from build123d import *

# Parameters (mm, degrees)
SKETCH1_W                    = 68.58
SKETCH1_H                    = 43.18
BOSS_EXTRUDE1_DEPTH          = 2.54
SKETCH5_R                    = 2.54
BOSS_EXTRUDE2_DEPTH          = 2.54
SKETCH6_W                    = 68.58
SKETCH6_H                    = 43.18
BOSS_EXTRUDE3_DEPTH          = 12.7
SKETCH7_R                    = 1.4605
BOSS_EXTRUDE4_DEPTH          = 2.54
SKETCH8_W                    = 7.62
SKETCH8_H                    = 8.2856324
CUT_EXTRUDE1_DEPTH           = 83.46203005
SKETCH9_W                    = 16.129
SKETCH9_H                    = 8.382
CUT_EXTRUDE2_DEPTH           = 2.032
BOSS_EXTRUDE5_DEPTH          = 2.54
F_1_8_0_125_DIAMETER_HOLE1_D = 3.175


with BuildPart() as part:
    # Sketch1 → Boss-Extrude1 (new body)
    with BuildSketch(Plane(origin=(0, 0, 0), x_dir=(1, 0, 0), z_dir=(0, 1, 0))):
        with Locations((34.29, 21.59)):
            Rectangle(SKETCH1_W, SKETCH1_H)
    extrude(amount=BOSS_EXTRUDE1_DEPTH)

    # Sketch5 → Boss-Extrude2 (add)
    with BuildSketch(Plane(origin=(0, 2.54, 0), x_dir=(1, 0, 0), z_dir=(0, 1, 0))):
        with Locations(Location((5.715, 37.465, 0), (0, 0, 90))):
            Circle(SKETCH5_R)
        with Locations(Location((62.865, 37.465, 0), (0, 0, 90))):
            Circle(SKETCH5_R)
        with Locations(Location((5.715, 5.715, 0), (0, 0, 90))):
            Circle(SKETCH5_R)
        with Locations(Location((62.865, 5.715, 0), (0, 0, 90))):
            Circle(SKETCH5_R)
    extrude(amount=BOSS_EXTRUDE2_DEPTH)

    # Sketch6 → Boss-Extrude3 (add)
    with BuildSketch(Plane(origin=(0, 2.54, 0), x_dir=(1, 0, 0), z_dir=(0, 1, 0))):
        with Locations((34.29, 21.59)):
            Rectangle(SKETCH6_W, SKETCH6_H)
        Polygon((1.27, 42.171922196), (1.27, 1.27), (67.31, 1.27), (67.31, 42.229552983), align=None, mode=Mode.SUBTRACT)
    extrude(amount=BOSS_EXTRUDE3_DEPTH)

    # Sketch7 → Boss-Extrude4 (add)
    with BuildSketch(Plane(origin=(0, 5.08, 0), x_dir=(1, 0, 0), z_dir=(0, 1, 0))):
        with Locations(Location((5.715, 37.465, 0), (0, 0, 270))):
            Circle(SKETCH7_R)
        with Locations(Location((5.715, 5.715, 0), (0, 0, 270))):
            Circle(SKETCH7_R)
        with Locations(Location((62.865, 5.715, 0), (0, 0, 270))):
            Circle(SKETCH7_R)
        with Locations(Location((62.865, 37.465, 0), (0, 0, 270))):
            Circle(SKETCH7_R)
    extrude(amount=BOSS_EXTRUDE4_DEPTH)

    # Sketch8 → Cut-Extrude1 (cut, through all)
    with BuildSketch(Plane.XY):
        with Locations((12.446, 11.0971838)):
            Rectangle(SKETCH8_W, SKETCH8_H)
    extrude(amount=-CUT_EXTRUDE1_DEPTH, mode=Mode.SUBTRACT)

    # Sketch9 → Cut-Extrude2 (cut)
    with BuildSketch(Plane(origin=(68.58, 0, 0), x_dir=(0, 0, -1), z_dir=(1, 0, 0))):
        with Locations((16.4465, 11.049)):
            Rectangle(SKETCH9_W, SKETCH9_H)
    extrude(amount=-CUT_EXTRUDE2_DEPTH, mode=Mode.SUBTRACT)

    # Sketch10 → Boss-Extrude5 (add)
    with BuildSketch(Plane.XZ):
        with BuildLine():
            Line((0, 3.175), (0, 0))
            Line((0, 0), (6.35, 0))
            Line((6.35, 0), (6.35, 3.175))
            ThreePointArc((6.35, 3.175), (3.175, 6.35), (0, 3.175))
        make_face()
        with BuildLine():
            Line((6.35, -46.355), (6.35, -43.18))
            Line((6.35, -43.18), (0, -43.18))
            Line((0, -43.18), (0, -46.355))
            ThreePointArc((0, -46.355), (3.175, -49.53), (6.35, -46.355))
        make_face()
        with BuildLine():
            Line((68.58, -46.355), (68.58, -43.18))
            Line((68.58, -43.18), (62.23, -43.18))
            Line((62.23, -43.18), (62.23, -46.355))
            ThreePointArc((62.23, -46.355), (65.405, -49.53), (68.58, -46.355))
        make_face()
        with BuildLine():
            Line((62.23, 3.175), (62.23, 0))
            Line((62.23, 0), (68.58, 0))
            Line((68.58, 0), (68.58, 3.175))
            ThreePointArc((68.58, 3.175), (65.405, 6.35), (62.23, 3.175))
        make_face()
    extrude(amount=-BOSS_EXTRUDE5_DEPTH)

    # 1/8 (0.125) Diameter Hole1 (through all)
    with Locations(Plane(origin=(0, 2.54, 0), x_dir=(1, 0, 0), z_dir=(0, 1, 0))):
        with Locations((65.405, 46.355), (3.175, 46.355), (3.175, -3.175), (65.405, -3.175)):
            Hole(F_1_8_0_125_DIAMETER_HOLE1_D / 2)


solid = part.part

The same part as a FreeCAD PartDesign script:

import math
import FreeCAD as App
import Part
import Sketcher
Q = App.Units.Quantity

doc = App.newDocument("Part")
body = doc.addObject("PartDesign::Body", "Body")

# Sketch on XZ plane
sketch1 = body.newObject("Sketcher::SketchObject", "Sketch")
sketch1.AttachmentSupport = (doc.getObject("XZ_Plane"), [""])
sketch1.MapMode = "FlatFace"
sketch1.addGeometry(Part.LineSegment(App.Vector(0, -43, 0), App.Vector(0, 0, 0)), False)
sketch1.addGeometry(Part.LineSegment(App.Vector(0, 0, 0), App.Vector(69, 0, 0)), False)
sketch1.addGeometry(Part.LineSegment(App.Vector(69, 0, 0), App.Vector(69, -43, 0)), False)
sketch1.addGeometry(Part.LineSegment(App.Vector(69, -43, 0), App.Vector(0, -43, 0)), False)
sketch1.addConstraint(Sketcher.Constraint("Coincident", 0, 2, 1, 1))
sketch1.addConstraint(Sketcher.Constraint("Coincident", 1, 2, 2, 1))
sketch1.addConstraint(Sketcher.Constraint("Coincident", 2, 2, 3, 1))
sketch1.addConstraint(Sketcher.Constraint("Coincident", 3, 2, 0, 1))
sketch1.addConstraint(Sketcher.Constraint("Vertical", 0))
sketch1.addConstraint(Sketcher.Constraint("Horizontal", 1))
sketch1.addConstraint(Sketcher.Constraint("Vertical", 2))
sketch1.addConstraint(Sketcher.Constraint("Horizontal", 3))
sketch1.addConstraint(Sketcher.Constraint("Coincident", 0, 2, -1, 1))
sketch1.addConstraint(Sketcher.Constraint("DistanceX", 1, 1, 1, 2, Q("2.7 in")))
sketch1.addConstraint(Sketcher.Constraint("DistanceY", 0, 1, 0, 2, Q("1.7 in")))
pad1 = body.newObject("PartDesign::Pad", "Pad")
pad1.Profile = sketch1
pad1.Length = Q("0.1 in")
pad1.Reversed = True

# Sketch on XZ plane
sketch2 = body.newObject("Sketcher::SketchObject", "Sketch001")
sketch2.AttachmentSupport = (doc.getObject("XZ_Plane"), [""])
sketch2.MapMode = "FlatFace"
sketch2.AttachmentOffset = App.Placement(App.Vector(0, 0, -0.1 * 25.4), App.Rotation())
sketch2.addGeometry(Part.Circle(App.Vector(5.7, -37.5, 0), App.Vector(0, 0, 1), 2.5), False)
sketch2.addGeometry(Part.Circle(App.Vector(62.9, -37.5, 0), App.Vector(0, 0, 1), 2.5), False)
sketch2.addGeometry(Part.Circle(App.Vector(5.7, -5.7, 0), App.Vector(0, 0, 1), 2.5), False)
sketch2.addGeometry(Part.Circle(App.Vector(62.9, -5.7, 0), App.Vector(0, 0, 1), 2.5), False)
sketch2.addConstraint(Sketcher.Constraint("Equal", 0, 1))
sketch2.addConstraint(Sketcher.Constraint("Equal", 1, 2))
sketch2.addConstraint(Sketcher.Constraint("Equal", 2, 3))
sketch2.addConstraint(Sketcher.Constraint("Horizontal", 0, 3, 1, 3))
sketch2.addConstraint(Sketcher.Constraint("Horizontal", 2, 3, 3, 3))
sketch2.addConstraint(Sketcher.Constraint("Vertical", 0, 3, 2, 3))
sketch2.addConstraint(Sketcher.Constraint("Vertical", 1, 3, 3, 3))
sketch2.addConstraint(Sketcher.Constraint("Diameter", 0, Q("0.2 in")))
sketch2.addConstraint(Sketcher.Constraint("DistanceX", 0, 3, 1, 3, Q("2.25 in")))
sketch2.addConstraint(Sketcher.Constraint("DistanceY", 0, 3, 2, 3, Q("1.25 in")))
sketch2.addConstraint(Sketcher.Constraint("DistanceX", -1, 1, 0, 3, Q("0.225 in")))
sketch2.addConstraint(Sketcher.Constraint("DistanceY", 0, 3, -1, 1, Q("1.475 in")))
pad2 = body.newObject("PartDesign::Pad", "Pad001")
pad2.Profile = sketch2
pad2.Length = Q("0.1 in")
pad2.Reversed = True

# Sketch on XZ plane
sketch3 = body.newObject("Sketcher::SketchObject", "Sketch002")
sketch3.AttachmentSupport = (doc.getObject("XZ_Plane"), [""])
sketch3.MapMode = "FlatFace"
sketch3.AttachmentOffset = App.Placement(App.Vector(0, 0, -0.1 * 25.4), App.Rotation())
sketch3.addGeometry(Part.LineSegment(App.Vector(0, -43, 0), App.Vector(0, 0, 0)), False)
sketch3.addGeometry(Part.LineSegment(App.Vector(0, 0, 0), App.Vector(69, 0, 0)), False)
sketch3.addGeometry(Part.LineSegment(App.Vector(69, 0, 0), App.Vector(69, -43, 0)), False)
sketch3.addGeometry(Part.LineSegment(App.Vector(69, -43, 0), App.Vector(0, -43, 0)), False)
sketch3.addGeometry(Part.LineSegment(App.Vector(1, -1, 0), App.Vector(1, -42, 0)), False)
sketch3.addGeometry(Part.LineSegment(App.Vector(1, -42, 0), App.Vector(67, -42, 0)), False)
sketch3.addGeometry(Part.LineSegment(App.Vector(67, -42, 0), App.Vector(67, -1, 0)), False)
sketch3.addGeometry(Part.LineSegment(App.Vector(67, -1, 0), App.Vector(1, -1, 0)), False)
sketch3.addConstraint(Sketcher.Constraint("Coincident", 0, 2, 1, 1))
sketch3.addConstraint(Sketcher.Constraint("Coincident", 1, 2, 2, 1))
sketch3.addConstraint(Sketcher.Constraint("Coincident", 2, 2, 3, 1))
sketch3.addConstraint(Sketcher.Constraint("Coincident", 3, 2, 0, 1))
sketch3.addConstraint(Sketcher.Constraint("Coincident", 4, 2, 5, 1))
sketch3.addConstraint(Sketcher.Constraint("Coincident", 5, 2, 6, 1))
sketch3.addConstraint(Sketcher.Constraint("Coincident", 6, 2, 7, 1))
sketch3.addConstraint(Sketcher.Constraint("Coincident", 7, 2, 4, 1))
sketch3.addConstraint(Sketcher.Constraint("Vertical", 0))
sketch3.addConstraint(Sketcher.Constraint("Horizontal", 1))
sketch3.addConstraint(Sketcher.Constraint("Vertical", 2))
sketch3.addConstraint(Sketcher.Constraint("Horizontal", 3))
sketch3.addConstraint(Sketcher.Constraint("Vertical", 4))
sketch3.addConstraint(Sketcher.Constraint("Vertical", 6))
sketch3.addConstraint(Sketcher.Constraint("Horizontal", 7))
sketch3.addConstraint(Sketcher.Constraint("Coincident", 0, 2, -1, 1))
sketch3.addConstraint(Sketcher.Constraint("DistanceX", 1, 1, 1, 2, Q("2.7 in")))
sketch3.addConstraint(Sketcher.Constraint("DistanceX", 7, 2, 7, 1, Q("2.6 in")))
sketch3.addConstraint(Sketcher.Constraint("DistanceY", 0, 1, 0, 2, Q("1.7 in")))
sketch3.addConstraint(Sketcher.Constraint("DistanceX", -1, 1, 4, 2, Q("0.05 in")))
sketch3.addConstraint(Sketcher.Constraint("DistanceY", 6, 2, -1, 1, Q("0.05 in")))
sketch3.addConstraint(Sketcher.Constraint("Angle", 5, Q("-0.05 deg")))
sketch3.addConstraint(Sketcher.Constraint("DistanceY", 4, 2, 4, 1, 40.901922))
pad3 = body.newObject("PartDesign::Pad", "Pad002")
pad3.Profile = sketch3
pad3.Length = Q("0.5 in")
pad3.Reversed = True

# Sketch on XZ plane
sketch4 = body.newObject("Sketcher::SketchObject", "Sketch003")
sketch4.AttachmentSupport = (doc.getObject("XZ_Plane"), [""])
sketch4.MapMode = "FlatFace"
sketch4.AttachmentOffset = App.Placement(App.Vector(0, 0, -0.2 * 25.4), App.Rotation())
sketch4.addGeometry(Part.Circle(App.Vector(5.7, -37.5, 0), App.Vector(0, 0, 1), 1.5), False)
sketch4.addGeometry(Part.Circle(App.Vector(5.7, -5.7, 0), App.Vector(0, 0, 1), 1.5), False)
sketch4.addGeometry(Part.Circle(App.Vector(62.9, -5.7, 0), App.Vector(0, 0, 1), 1.5), False)
sketch4.addGeometry(Part.Circle(App.Vector(62.9, -37.5, 0), App.Vector(0, 0, 1), 1.5), False)
sketch4.addConstraint(Sketcher.Constraint("Equal", 0, 1))
sketch4.addConstraint(Sketcher.Constraint("Equal", 1, 2))
sketch4.addConstraint(Sketcher.Constraint("Equal", 2, 3))
sketch4.addConstraint(Sketcher.Constraint("Horizontal", 1, 3, 2, 3))
sketch4.addConstraint(Sketcher.Constraint("Horizontal", 0, 3, 3, 3))
sketch4.addConstraint(Sketcher.Constraint("Vertical", 0, 3, 1, 3))
sketch4.addConstraint(Sketcher.Constraint("Vertical", 2, 3, 3, 3))
sketch4.addConstraint(Sketcher.Constraint("Diameter", 0, Q("0.115 in")))
sketch4.addConstraint(Sketcher.Constraint("DistanceY", 0, 3, 1, 3, Q("1.25 in")))
sketch4.addConstraint(Sketcher.Constraint("DistanceX", 1, 3, 2, 3, Q("2.25 in")))
sketch4.addConstraint(Sketcher.Constraint("DistanceX", -1, 1, 0, 3, Q("0.225 in")))
sketch4.addConstraint(Sketcher.Constraint("DistanceY", 0, 3, -1, 1, Q("1.475 in")))
pad4 = body.newObject("PartDesign::Pad", "Pad003")
pad4.Profile = sketch4
pad4.Length = Q("0.1 in")
pad4.Reversed = True

# Sketch on XY plane
sketch5 = body.newObject("Sketcher::SketchObject", "Sketch004")
sketch5.AttachmentSupport = (doc.getObject("XY_Plane"), [""])
sketch5.MapMode = "FlatFace"
sketch5.addGeometry(Part.LineSegment(App.Vector(9, 15, 0), App.Vector(9, 7, 0)), False)
sketch5.addGeometry(Part.LineSegment(App.Vector(9, 7, 0), App.Vector(16, 7, 0)), False)
sketch5.addGeometry(Part.LineSegment(App.Vector(16, 7, 0), App.Vector(16, 15, 0)), False)
sketch5.addGeometry(Part.LineSegment(App.Vector(16, 15, 0), App.Vector(9, 15, 0)), False)
sketch5.addConstraint(Sketcher.Constraint("Coincident", 0, 2, 1, 1))
sketch5.addConstraint(Sketcher.Constraint("Coincident", 1, 2, 2, 1))
sketch5.addConstraint(Sketcher.Constraint("Coincident", 2, 2, 3, 1))
sketch5.addConstraint(Sketcher.Constraint("Coincident", 3, 2, 0, 1))
sketch5.addConstraint(Sketcher.Constraint("Vertical", 0))
sketch5.addConstraint(Sketcher.Constraint("Horizontal", 1))
sketch5.addConstraint(Sketcher.Constraint("Vertical", 2))
sketch5.addConstraint(Sketcher.Constraint("Horizontal", 3))
sketch5.addConstraint(Sketcher.Constraint("DistanceX", 1, 1, 1, 2, Q("0.3 in")))
sketch5.addConstraint(Sketcher.Constraint("DistanceY", -1, 1, 2, 2, Q("0.6 in")))
sketch5.addConstraint(Sketcher.Constraint("DistanceX", -1, 1, 0, 2, Q("0.34 in")))
sketch5.addConstraint(Sketcher.Constraint("DistanceY", 0, 2, 0, 1, 8.285632))
pocket1 = body.newObject("PartDesign::Pocket", "Pocket")
pocket1.Profile = sketch5
pocket1.Type = "ThroughAll"

# Sketch on YZ plane
sketch6 = body.newObject("Sketcher::SketchObject", "Sketch005")
sketch6.AttachmentSupport = (doc.getObject("YZ_Plane"), [""])
sketch6.MapMode = "FlatFace"
sketch6.AttachmentOffset = App.Placement(App.Vector(0, 0, 2.7 * 25.4), App.Rotation())
sketch6.addGeometry(Part.LineSegment(App.Vector(15, -8, 0), App.Vector(7, -8, 0)), False)
sketch6.addGeometry(Part.LineSegment(App.Vector(7, -8, 0), App.Vector(7, -25, 0)), False)
sketch6.addGeometry(Part.LineSegment(App.Vector(7, -25, 0), App.Vector(15, -25, 0)), False)
sketch6.addGeometry(Part.LineSegment(App.Vector(15, -25, 0), App.Vector(15, -8, 0)), False)
sketch6.addConstraint(Sketcher.Constraint("Coincident", 0, 2, 1, 1))
sketch6.addConstraint(Sketcher.Constraint("Coincident", 1, 2, 2, 1))
sketch6.addConstraint(Sketcher.Constraint("Coincident", 2, 2, 3, 1))
sketch6.addConstraint(Sketcher.Constraint("Coincident", 3, 2, 0, 1))
sketch6.addConstraint(Sketcher.Constraint("Horizontal", 0))
sketch6.addConstraint(Sketcher.Constraint("Vertical", 1))
sketch6.addConstraint(Sketcher.Constraint("Horizontal", 2))
sketch6.addConstraint(Sketcher.Constraint("Vertical", 3))
sketch6.addConstraint(Sketcher.Constraint("DistanceX", 0, 2, 0, 1, Q("0.33 in")))
sketch6.addConstraint(Sketcher.Constraint("DistanceX", -1, 1, 2, 2, Q("0.6 in")))
sketch6.addConstraint(Sketcher.Constraint("DistanceY", 1, 2, 1, 1, Q("0.635 in")))
sketch6.addConstraint(Sketcher.Constraint("DistanceY", 0, 2, -1, 1, Q("0.33 in")))
pocket2 = body.newObject("PartDesign::Pocket", "Pocket001")
pocket2.Profile = sketch6
pocket2.Length = Q("0.08 in")

# Sketch on XZ plane
sketch7 = body.newObject("Sketcher::SketchObject", "Sketch006")
sketch7.AttachmentSupport = (doc.getObject("XZ_Plane"), [""])
sketch7.MapMode = "FlatFace"
sketch7.addGeometry(Part.LineSegment(App.Vector(0, 3.2, 0), App.Vector(0, 0, 0)), False)
sketch7.addGeometry(Part.LineSegment(App.Vector(0, 0, 0), App.Vector(6.3, 0, 0)), False)
sketch7.addGeometry(Part.LineSegment(App.Vector(6.3, 0, 0), App.Vector(6.3, 3.2, 0)), False)
sketch7.addGeometry(Part.ArcOfCircle(Part.Circle(App.Vector(3.2, 3.2, 0), App.Vector(0, 0, 1), 3.2), math.radians(0), math.radians(180)), False)
sketch7.addGeometry(Part.LineSegment(App.Vector(6.3, -46.4, 0), App.Vector(6.3, -43.2, 0)), False)
sketch7.addGeometry(Part.LineSegment(App.Vector(6.3, -43.2, 0), App.Vector(0, -43.2, 0)), False)
sketch7.addGeometry(Part.LineSegment(App.Vector(0, -43.2, 0), App.Vector(0, -46.4, 0)), False)
sketch7.addGeometry(Part.ArcOfCircle(Part.Circle(App.Vector(3.2, -46.4, 0), App.Vector(0, 0, 1), 3.2), math.radians(180), math.radians(360)), False)
sketch7.addGeometry(Part.LineSegment(App.Vector(68.6, -46.4, 0), App.Vector(68.6, -43.2, 0)), False)
sketch7.addGeometry(Part.LineSegment(App.Vector(68.6, -43.2, 0), App.Vector(62.2, -43.2, 0)), False)
sketch7.addGeometry(Part.LineSegment(App.Vector(62.2, -43.2, 0), App.Vector(62.2, -46.4, 0)), False)
sketch7.addGeometry(Part.ArcOfCircle(Part.Circle(App.Vector(65.4, -46.4, 0), App.Vector(0, 0, 1), 3.2), math.radians(180), math.radians(360)), False)
sketch7.addGeometry(Part.LineSegment(App.Vector(62.2, 3.2, 0), App.Vector(62.2, 0, 0)), False)
sketch7.addGeometry(Part.LineSegment(App.Vector(62.2, 0, 0), App.Vector(68.6, 0, 0)), False)
sketch7.addGeometry(Part.LineSegment(App.Vector(68.6, 0, 0), App.Vector(68.6, 3.2, 0)), False)
sketch7.addGeometry(Part.ArcOfCircle(Part.Circle(App.Vector(65.4, 3.2, 0), App.Vector(0, 0, 1), 3.2), math.radians(0), math.radians(180)), False)
sketch7.addConstraint(Sketcher.Constraint("Coincident", 0, 2, 1, 1))
sketch7.addConstraint(Sketcher.Constraint("Coincident", 1, 2, 2, 1))
sketch7.addConstraint(Sketcher.Constraint("Tangent", 2, 2, 3, 1))
sketch7.addConstraint(Sketcher.Constraint("Tangent", 3, 2, 0, 1))
sketch7.addConstraint(Sketcher.Constraint("Coincident", 4, 2, 5, 1))
sketch7.addConstraint(Sketcher.Constraint("Coincident", 5, 2, 6, 1))
sketch7.addConstraint(Sketcher.Constraint("Tangent", 6, 2, 7, 1))
sketch7.addConstraint(Sketcher.Constraint("Tangent", 7, 2, 4, 1))
sketch7.addConstraint(Sketcher.Constraint("Coincident", 8, 2, 9, 1))
sketch7.addConstraint(Sketcher.Constraint("Coincident", 9, 2, 10, 1))
sketch7.addConstraint(Sketcher.Constraint("Tangent", 10, 2, 11, 1))
sketch7.addConstraint(Sketcher.Constraint("Tangent", 11, 2, 8, 1))
sketch7.addConstraint(Sketcher.Constraint("Coincident", 12, 2, 13, 1))
sketch7.addConstraint(Sketcher.Constraint("Coincident", 13, 2, 14, 1))
sketch7.addConstraint(Sketcher.Constraint("Tangent", 14, 2, 15, 1))
sketch7.addConstraint(Sketcher.Constraint("Tangent", 15, 2, 12, 1))
sketch7.addConstraint(Sketcher.Constraint("Vertical", 0))
sketch7.addConstraint(Sketcher.Constraint("Horizontal", 1))
sketch7.addConstraint(Sketcher.Constraint("Vertical", 2))
sketch7.addConstraint(Sketcher.Constraint("Vertical", 4))
sketch7.addConstraint(Sketcher.Constraint("Horizontal", 5))
sketch7.addConstraint(Sketcher.Constraint("Vertical", 6))
sketch7.addConstraint(Sketcher.Constraint("Vertical", 8))
sketch7.addConstraint(Sketcher.Constraint("Horizontal", 9))
sketch7.addConstraint(Sketcher.Constraint("Vertical", 10))
sketch7.addConstraint(Sketcher.Constraint("Vertical", 12))
sketch7.addConstraint(Sketcher.Constraint("Horizontal", 13))
sketch7.addConstraint(Sketcher.Constraint("Vertical", 14))
sketch7.addConstraint(Sketcher.Constraint("Coincident", 0, 2, -1, 1))
sketch7.addConstraint(Sketcher.Constraint("Equal", 3, 7))
sketch7.addConstraint(Sketcher.Constraint("Equal", 7, 11))
sketch7.addConstraint(Sketcher.Constraint("Equal", 11, 15))
sketch7.addConstraint(Sketcher.Constraint("PointOnObject", 5, 2, -2))
sketch7.addConstraint(Sketcher.Constraint("PointOnObject", 12, 2, -1))
sketch7.addConstraint(Sketcher.Constraint("Horizontal", 7, 3, 11, 3))
sketch7.addConstraint(Sketcher.Constraint("Horizontal", 3, 3, 15, 3))
sketch7.addConstraint(Sketcher.Constraint("Horizontal", 5, 2, 8, 2))
sketch7.addConstraint(Sketcher.Constraint("Vertical", 11, 3, 15, 3))
sketch7.addConstraint(Sketcher.Constraint("Equal", 2, 4))
sketch7.addConstraint(Sketcher.Constraint("Radius", 3, Q("0.125 in")))
sketch7.addConstraint(Sketcher.Constraint("DistanceY", 4, 2, -1, 1, Q("1.7 in")))
sketch7.addConstraint(Sketcher.Constraint("DistanceX", -1, 1, 8, 2, Q("2.7 in")))
sketch7.addConstraint(Sketcher.Constraint("DistanceY", 0, 2, 0, 1, Q("0.125 in")))
pad5 = body.newObject("PartDesign::Pad", "Pad004")
pad5.Profile = sketch7
pad5.Length = Q("0.1 in")
pad5.Reversed = True

# Sketch on XZ plane
sketch8 = body.newObject("Sketcher::SketchObject", "Sketch007")
sketch8.AttachmentSupport = (doc.getObject("XZ_Plane"), [""])
sketch8.MapMode = "FlatFace"
sketch8.AttachmentOffset = App.Placement(App.Vector(0, 0, -0.1 * 25.4), App.Rotation())
sketch8.addGeometry(Part.Circle(App.Vector(65.4, -46.4, 0), App.Vector(0, 0, 1), 1.6), False)
sketch8.addGeometry(Part.Circle(App.Vector(3.2, -46.4, 0), App.Vector(0, 0, 1), 1.6), False)
sketch8.addGeometry(Part.Circle(App.Vector(3.2, 3.2, 0), App.Vector(0, 0, 1), 1.6), False)
sketch8.addGeometry(Part.Circle(App.Vector(65.4, 3.2, 0), App.Vector(0, 0, 1), 1.6), False)
sketch8.addConstraint(Sketcher.Constraint("Equal", 0, 1))
sketch8.addConstraint(Sketcher.Constraint("Equal", 1, 2))
sketch8.addConstraint(Sketcher.Constraint("Equal", 2, 3))
sketch8.addConstraint(Sketcher.Constraint("Horizontal", 0, 3, 1, 3))
sketch8.addConstraint(Sketcher.Constraint("Horizontal", 2, 3, 3, 3))
sketch8.addConstraint(Sketcher.Constraint("Vertical", 1, 3, 2, 3))
sketch8.addConstraint(Sketcher.Constraint("Vertical", 0, 3, 3, 3))
sketch8.addConstraint(Sketcher.Constraint("Diameter", 0, Q("0.125 in")))
sketch8.addConstraint(Sketcher.Constraint("DistanceX", 1, 3, 0, 3, Q("2.45 in")))
sketch8.addConstraint(Sketcher.Constraint("DistanceY", 1, 3, 2, 3, Q("1.95 in")))
sketch8.addConstraint(Sketcher.Constraint("DistanceX", -1, 1, 0, 3, Q("2.575 in")))
sketch8.addConstraint(Sketcher.Constraint("DistanceY", 0, 3, -1, 1, Q("1.825 in")))
doc.recompute()
hole = body.newObject("PartDesign::Hole", "Hole")
hole.Profile = sketch8
hole.ThreadType = "None"
hole.Diameter = Q("0.125 in")
hole.DepthType = "ThroughAll"
hole.Reversed = True

doc.recompute()
